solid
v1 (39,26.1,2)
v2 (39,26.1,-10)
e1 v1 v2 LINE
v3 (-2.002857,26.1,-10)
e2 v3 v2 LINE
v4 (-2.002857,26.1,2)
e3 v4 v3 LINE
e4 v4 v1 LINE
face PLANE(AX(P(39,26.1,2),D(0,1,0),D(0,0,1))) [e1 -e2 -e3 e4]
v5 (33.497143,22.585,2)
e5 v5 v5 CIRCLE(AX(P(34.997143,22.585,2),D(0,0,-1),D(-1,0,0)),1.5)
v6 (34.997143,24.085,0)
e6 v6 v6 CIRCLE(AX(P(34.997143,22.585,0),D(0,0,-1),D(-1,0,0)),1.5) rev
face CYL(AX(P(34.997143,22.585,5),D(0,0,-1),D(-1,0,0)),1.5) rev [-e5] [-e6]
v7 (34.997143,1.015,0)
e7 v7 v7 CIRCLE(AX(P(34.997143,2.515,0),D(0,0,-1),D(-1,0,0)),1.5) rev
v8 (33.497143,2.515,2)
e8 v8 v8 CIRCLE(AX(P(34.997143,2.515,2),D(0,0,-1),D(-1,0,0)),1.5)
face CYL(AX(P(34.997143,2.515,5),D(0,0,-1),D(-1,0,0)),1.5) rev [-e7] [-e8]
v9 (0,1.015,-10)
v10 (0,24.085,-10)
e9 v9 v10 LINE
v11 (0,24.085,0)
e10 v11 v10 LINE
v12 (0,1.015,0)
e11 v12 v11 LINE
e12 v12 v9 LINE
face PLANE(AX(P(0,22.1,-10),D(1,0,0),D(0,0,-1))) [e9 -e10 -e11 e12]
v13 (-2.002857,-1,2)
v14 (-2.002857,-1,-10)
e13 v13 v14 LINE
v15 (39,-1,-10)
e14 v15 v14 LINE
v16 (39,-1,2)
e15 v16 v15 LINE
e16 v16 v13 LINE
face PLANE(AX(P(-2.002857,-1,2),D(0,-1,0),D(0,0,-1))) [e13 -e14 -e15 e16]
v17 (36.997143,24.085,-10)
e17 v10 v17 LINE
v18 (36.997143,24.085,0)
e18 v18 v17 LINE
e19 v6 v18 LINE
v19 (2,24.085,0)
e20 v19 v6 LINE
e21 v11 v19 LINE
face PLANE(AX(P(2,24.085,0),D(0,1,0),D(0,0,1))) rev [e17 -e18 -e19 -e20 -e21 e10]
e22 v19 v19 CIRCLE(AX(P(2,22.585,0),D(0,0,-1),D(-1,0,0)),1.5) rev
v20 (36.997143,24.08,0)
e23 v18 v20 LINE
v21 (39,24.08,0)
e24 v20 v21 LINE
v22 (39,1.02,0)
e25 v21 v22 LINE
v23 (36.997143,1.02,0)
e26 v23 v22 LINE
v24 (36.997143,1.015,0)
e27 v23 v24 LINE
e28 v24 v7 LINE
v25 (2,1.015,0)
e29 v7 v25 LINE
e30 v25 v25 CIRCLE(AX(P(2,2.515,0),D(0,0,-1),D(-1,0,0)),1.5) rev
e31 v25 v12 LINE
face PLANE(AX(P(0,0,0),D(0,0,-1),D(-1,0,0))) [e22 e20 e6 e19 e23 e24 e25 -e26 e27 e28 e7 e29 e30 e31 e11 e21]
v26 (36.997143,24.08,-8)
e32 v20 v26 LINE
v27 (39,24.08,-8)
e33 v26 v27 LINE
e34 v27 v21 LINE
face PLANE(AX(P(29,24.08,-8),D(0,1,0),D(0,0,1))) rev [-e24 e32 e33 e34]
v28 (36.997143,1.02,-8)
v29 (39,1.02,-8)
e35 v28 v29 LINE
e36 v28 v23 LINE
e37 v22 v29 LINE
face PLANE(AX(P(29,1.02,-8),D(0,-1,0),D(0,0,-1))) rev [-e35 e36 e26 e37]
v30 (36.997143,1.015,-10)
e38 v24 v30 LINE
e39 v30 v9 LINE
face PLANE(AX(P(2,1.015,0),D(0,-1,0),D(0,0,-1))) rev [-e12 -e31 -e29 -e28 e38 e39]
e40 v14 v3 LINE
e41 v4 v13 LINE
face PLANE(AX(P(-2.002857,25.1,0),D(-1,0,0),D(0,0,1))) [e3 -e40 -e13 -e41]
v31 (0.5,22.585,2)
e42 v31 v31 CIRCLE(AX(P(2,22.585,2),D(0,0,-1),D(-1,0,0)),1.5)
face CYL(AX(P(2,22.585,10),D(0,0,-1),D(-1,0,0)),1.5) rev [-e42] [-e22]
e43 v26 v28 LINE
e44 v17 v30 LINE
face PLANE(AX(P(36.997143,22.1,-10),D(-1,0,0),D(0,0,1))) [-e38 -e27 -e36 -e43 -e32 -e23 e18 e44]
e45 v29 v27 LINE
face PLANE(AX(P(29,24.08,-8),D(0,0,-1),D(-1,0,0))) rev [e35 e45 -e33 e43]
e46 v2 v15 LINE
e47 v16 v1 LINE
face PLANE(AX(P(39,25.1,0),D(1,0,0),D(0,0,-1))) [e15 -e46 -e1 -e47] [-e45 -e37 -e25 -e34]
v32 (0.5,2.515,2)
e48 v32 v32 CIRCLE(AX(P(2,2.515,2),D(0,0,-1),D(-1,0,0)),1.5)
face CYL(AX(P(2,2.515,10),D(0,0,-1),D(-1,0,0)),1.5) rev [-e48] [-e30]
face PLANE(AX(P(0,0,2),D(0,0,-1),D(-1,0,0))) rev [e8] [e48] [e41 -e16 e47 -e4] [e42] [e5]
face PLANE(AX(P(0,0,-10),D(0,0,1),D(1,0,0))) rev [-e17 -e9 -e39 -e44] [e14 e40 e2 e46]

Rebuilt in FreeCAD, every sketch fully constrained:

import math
import FreeCAD as App
import Part
import Sketcher

V = App.Vector


def add_polygon(sketch, points):
    """Adds a closed chain of lines whose ends are joined by coincident constraints."""
    first, n = sketch.GeometryCount, len(points)
    for a, b in zip(points, points[1:] + points[:1]):
        sketch.addGeometry(Part.LineSegment(App.Vector(*a, 0), App.Vector(*b, 0)), False)
    for i in range(n):
        sketch.addConstraint(Sketcher.Constraint("Coincident", first + i, 2, first + (i + 1) % n, 1))

doc = App.newDocument("Part")
body = doc.addObject("PartDesign::Body", "Body")

sketch1 = body.newObject("Sketcher::SketchObject", "Sketch")
sketch1.AttachmentSupport = (doc.getObject("XY_Plane"), [""])
sketch1.MapMode = "FlatFace"
add_polygon(sketch1, [(0, 25), (0, 0), (35, 0), (35, 25)])
sketch1.addConstraint(Sketcher.Constraint("Vertical", 0))
sketch1.addConstraint(Sketcher.Constraint("Horizontal", 1))
sketch1.addConstraint(Sketcher.Constraint("Vertical", 2))
sketch1.addConstraint(Sketcher.Constraint("Horizontal", 3))
sketch1.addConstraint(Sketcher.Constraint("Coincident", 0, 2, -1, 1))
sketch1.addConstraint(Sketcher.Constraint("DistanceX", 1, 1, 1, 2, 35.0))
sketch1.addConstraint(Sketcher.Constraint("DistanceY", 0, 2, 0, 1, 25.1))
pad1 = body.newObject("PartDesign::Pad", "Pad")
pad1.Profile = sketch1
pad1.Length = 2

sketch2 = body.newObject("Sketcher::SketchObject", "Sketch001")
sketch2.AttachmentSupport = (doc.getObject("XY_Plane"), [""])
sketch2.MapMode = "FlatFace"
sketch2.AttachmentOffset = App.Placement(V(0, 0, 2), App.Rotation())
sketch2.addGeometry(Part.Circle(V(2.1, 23, 0), V(0, 0, 1), 1.5), False)
sketch2.addGeometry(Part.Circle(V(2.1, 2.1, 0), V(0, 0, 1), 1.5), False)
sketch2.addConstraint(Sketcher.Constraint("Equal", 0, 1))
sketch2.addConstraint(Sketcher.Constraint("Vertical", 0, 3, 1, 3))
sketch2.addConstraint(Sketcher.Constraint("Diameter", 0, 3.0))
sketch2.addConstraint(Sketcher.Constraint("DistanceX", -1, 1, 0, 3, 2.13))
sketch2.addConstraint(Sketcher.Constraint("DistanceY", -1, 1, 0, 3, 22.97))
sketch2.addConstraint(Sketcher.Constraint("DistanceY", -1, 1, 1, 3, 2.13))
pocket1 = body.newObject("PartDesign::Pocket", "Pocket")
pocket1.Profile = sketch2
pocket1.Length = 2

sketch3 = body.newObject("Sketcher::SketchObject", "Sketch002")
sketch3.AttachmentSupport = (doc.getObject("XY_Plane"), [""])
sketch3.MapMode = "FlatFace"
sketch3.AttachmentOffset = App.Placement(V(0, 0, 2), App.Rotation())
add_polygon(sketch3, [(-2, 25.1), (-2, 0), (0, 0), (0, 25.1)])
sketch3.addConstraint(Sketcher.Constraint("Vertical", 0))
sketch3.addConstraint(Sketcher.Constraint("Horizontal", 1))
sketch3.addConstraint(Sketcher.Constraint("Vertical", 2))
sketch3.addConstraint(Sketcher.Constraint("Horizontal", 3))
sketch3.addConstraint(Sketcher.Constraint("Coincident", 1, 2, -1, 1))
sketch3.addConstraint(Sketcher.Constraint("DistanceY", 0, 2, 0, 1, 25.1))
sketch3.addConstraint(Sketcher.Constraint("DistanceX", 1, 1, 1, 2, 2.002857))
pad2 = body.newObject("PartDesign::Pad", "Pad001")
pad2.Profile = sketch3
pad2.Length = 2
pad2.Reversed = True

sketch4 = body.newObject("Sketcher::SketchObject", "Sketch003")
sketch4.AttachmentSupport = (doc.getObject("XY_Plane"), [""])
sketch4.MapMode = "FlatFace"
sketch4.AttachmentOffset = App.Placement(V(0, 0, 2), App.Rotation())
add_polygon(sketch4, [(2, 19), (2, 6), (15, 6), (15, 19)])
sketch4.addConstraint(Sketcher.Constraint("Vertical", 0))
sketch4.addConstraint(Sketcher.Constraint("Horizontal", 1))
sketch4.addConstraint(Sketcher.Constraint("Vertical", 2))
sketch4.addConstraint(Sketcher.Constraint("Horizontal", 3))
sketch4.addConstraint(Sketcher.Constraint("Equal", 3, 0))
sketch4.addConstraint(Sketcher.Constraint("DistanceX", 1, 1, 1, 2, 13.0))
sketch4.addConstraint(Sketcher.Constraint("DistanceY", -1, 1, 0, 2, 6.05))
sketch4.addConstraint(Sketcher.Constraint("DistanceX", -1, 1, 0, 2, 1.597143))
pocket2 = body.newObject("PartDesign::Pocket", "Pocket001")
pocket2.Profile = sketch4
pocket2.Length = 2

sketch5 = body.newObject("Sketcher::SketchObject", "Sketch004")
sketch5.AttachmentSupport = (doc.getObject("XY_Plane"), [""])
sketch5.MapMode = "FlatFace"
sketch5.AttachmentOffset = App.Placement(V(0, 0, 2), App.Rotation())
add_polygon(sketch5, [(35, 25.1), (35, 0), (39, 0), (39, 25.1)])
sketch5.addConstraint(Sketcher.Constraint("Vertical", 0))
sketch5.addConstraint(Sketcher.Constraint("Horizontal", 1))
sketch5.addConstraint(Sketcher.Constraint("Vertical", 2))
sketch5.addConstraint(Sketcher.Constraint("Horizontal", 3))
sketch5.addConstraint(Sketcher.Constraint("PointOnObject", 0, 2, -1))
sketch5.addConstraint(Sketcher.Constraint("DistanceX", 1, 1, 1, 2, 4.0))
sketch5.addConstraint(Sketcher.Constraint("DistanceY", 0, 2, 0, 1, 25.1))
sketch5.addConstraint(Sketcher.Constraint("DistanceX", -1, 1, 0, 2, 35.0))
pad3 = body.newObject("PartDesign::Pad", "Pad002")
pad3.Profile = sketch5
pad3.Length = 2
pad3.Reversed = True

sketch6 = body.newObject("Sketcher::SketchObject", "Sketch005")
sketch6.AttachmentSupport = (doc.getObject("XY_Plane"), [""])
sketch6.MapMode = "FlatFace"
add_polygon(sketch6, [(39, 25.1), (39, 0), (-2, 0), (-2, 25.1)])
sketch6.addGeometry(Part.ArcOfCircle(Part.Circle(V(35, 22.1, 0), V(0, 0, 1), 2), math.radians(180), math.radians(360)), False)
sketch6.addGeometry(Part.LineSegment(V(33, 22.1, 0), V(4, 22.1, 0)), False)
sketch6.addGeometry(Part.ArcOfCircle(Part.Circle(V(2, 22.1, 0), V(0, 0, 1), 2), math.radians(180), math.radians(360)), False)
sketch6.addGeometry(Part.LineSegment(V(0, 22.1, 0), V(0, 3, 0)), False)
sketch6.addGeometry(Part.ArcOfCircle(Part.Circle(V(2, 3, 0), V(0, 0, 1), 2), math.radians(0), math.radians(180)), False)
sketch6.addGeometry(Part.LineSegment(V(4, 3, 0), V(33, 3, 0)), False)
sketch6.addGeometry(Part.ArcOfCircle(Part.Circle(V(35, 3, 0), V(0, 0, 1), 2), math.radians(0), math.radians(180)), False)
sketch6.addGeometry(Part.LineSegment(V(37, 3, 0), V(37, 22.1, 0)), False)
sketch6.addConstraint(Sketcher.Constraint("Coincident", 4, 1, 5, 1))
sketch6.addConstraint(Sketcher.Constraint("Coincident", 5, 2, 6, 2))
sketch6.addConstraint(Sketcher.Constraint("Tangent", 6, 1, 7, 1))
sketch6.addConstraint(Sketcher.Constraint("Tangent", 7, 2, 8, 2))
sketch6.addConstraint(Sketcher.Constraint("Coincident", 8, 1, 9, 1))
sketch6.addConstraint(Sketcher.Constraint("Coincident", 9, 2, 10, 2))
sketch6.addConstraint(Sketcher.Constraint("Tangent", 10, 1, 11, 1))
sketch6.addConstraint(Sketcher.Constraint("Tangent", 11, 2, 4, 2))
sketch6.addConstraint(Sketcher.Constraint("Vertical", 0))
sketch6.addConstraint(Sketcher.Constraint("Horizontal", 1))
sketch6.addConstraint(Sketcher.Constraint("Vertical", 2))
sketch6.addConstraint(Sketcher.Constraint("Horizontal", 3))
sketch6.addConstraint(Sketcher.Constraint("Horizontal", 5))
sketch6.addConstraint(Sketcher.Constraint("Vertical", 7))
sketch6.addConstraint(Sketcher.Constraint("Horizontal", 9))
sketch6.addConstraint(Sketcher.Constraint("Vertical", 11))
sketch6.addConstraint(Sketcher.Constraint("Equal", 4, 6))
sketch6.addConstraint(Sketcher.Constraint("Equal", 6, 8))
sketch6.addConstraint(Sketcher.Constraint("Equal", 8, 10))
sketch6.addConstraint(Sketcher.Constraint("PointOnObject", 0, 2, -1))
sketch6.addConstraint(Sketcher.Constraint("PointOnObject", 6, 1, -2))
sketch6.addConstraint(Sketcher.Constraint("Horizontal", 4, 3, 6, 3))
sketch6.addConstraint(Sketcher.Constraint("Horizontal", 8, 3, 10, 3))
sketch6.addConstraint(Sketcher.Constraint("Horizontal", 6, 3, 4, 1))
sketch6.addConstraint(Sketcher.Constraint("Horizontal", 7, 2, 8, 1))
sketch6.addConstraint(Sketcher.Constraint("Radius", 4, 2.0))
sketch6.addConstraint(Sketcher.Constraint("DistanceY", 0, 2, 0, 1, 25.1))
sketch6.addConstraint(Sketcher.Constraint("DistanceY", 7, 2, 7, 1, 19.1))
sketch6.addConstraint(Sketcher.Constraint("DistanceY", -1, 1, 8, 3, 3.0))
sketch6.addConstraint(Sketcher.Constraint("DistanceX", -1, 1, 0, 2, 39.0))
sketch6.addConstraint(Sketcher.Constraint("DistanceX", 1, 2, 10, 3, 37.0))
sketch6.addConstraint(Sketcher.Constraint("DistanceX", 1, 2, 1, 1, 41.002857))
pad4 = body.newObject("PartDesign::Pad", "Pad003")
pad4.Profile = sketch6
pad4.Length = 10
pad4.Reversed = True

sketch7 = body.newObject("Sketcher::SketchObject", "Sketch006")
sketch7.AttachmentSupport = (doc.getObject("XY_Plane"), [""])
sketch7.MapMode = "FlatFace"
sketch7.AttachmentOffset = App.Placement(V(0, 0, 2), App.Rotation())
add_polygon(sketch7, [(-2, 25), (-2, 0), (15, 0), (15, 25)])
sketch7.addConstraint(Sketcher.Constraint("Vertical", 0))
sketch7.addConstraint(Sketcher.Constraint("Horizontal", 1))
sketch7.addConstraint(Sketcher.Constraint("Vertical", 2))
sketch7.addConstraint(Sketcher.Constraint("Horizontal", 3))
sketch7.addConstraint(Sketcher.Constraint("PointOnObject", 0, 2, -1))
sketch7.addConstraint(Sketcher.Constraint("DistanceY", 0, 2, 0, 1, 25.1))
sketch7.addConstraint(Sketcher.Constraint("DistanceX", 1, 1, 1, 2, 17.371692))
sketch7.addConstraint(Sketcher.Constraint("DistanceX", 0, 2, -1, 1, 2.002857))
pad5 = body.newObject("PartDesign::Pad", "Pad004")
pad5.Profile = sketch7
pad5.Length = 2
pad5.Reversed = True

sketch8 = body.newObject("Sketcher::SketchObject", "Sketch007")
sketch8.AttachmentSupport = (doc.getObject("XY_Plane"), [""])
sketch8.MapMode = "FlatFace"
sketch8.AttachmentOffset = App.Placement(V(0, 0, -10), App.Rotation())
sketch8.addGeometry(Part.Circle(V(2, 22.6, 0), V(0, 0, 1), 1.5), False)
sketch8.addGeometry(Part.Circle(V(2, 2.5, 0), V(0, 0, 1), 1.5), False)
sketch8.addConstraint(Sketcher.Constraint("Equal", 0, 1))
sketch8.addConstraint(Sketcher.Constraint("Vertical", 0, 3, 1, 3))
sketch8.addConstraint(Sketcher.Constraint("Diameter", 0, 3.0))
sketch8.addConstraint(Sketcher.Constraint("DistanceX", -1, 1, 0, 3, 2.0))
sketch8.addConstraint(Sketcher.Constraint("DistanceY", 1, 3, 0, 3, 20.07))
sketch8.addConstraint(Sketcher.Constraint("DistanceY", -1, 1, 0, 3, 22.585))
pocket3 = body.newObject("PartDesign::Pocket", "Pocket002")
pocket3.Profile = sketch8
pocket3.Length = 20
pocket3.Reversed = True

sketch9 = body.newObject("Sketcher::SketchObject", "Sketch008")
sketch9.AttachmentSupport = (doc.getObject("XY_Plane"), [""])
sketch9.MapMode = "FlatFace"
sketch9.addGeometry(Part.LineSegment(V(2, 20.1, 0), V(0, 20.1, 0)), False)
sketch9.addGeometry(Part.LineSegment(V(0, 20.1, 0), V(0, 22.1, 0)), False)
sketch9.addGeometry(Part.ArcOfCircle(Part.Circle(V(2, 22.1, 0), V(0, 0, 1), 2), math.radians(-180), math.radians(-90)), False)
sketch9.addGeometry(Part.LineSegment(V(0, 3, 0), V(0, 5, 0)), False)
sketch9.addGeometry(Part.LineSegment(V(0, 5, 0), V(2, 5, 0)), False)
sketch9.addGeometry(Part.ArcOfCircle(Part.Circle(V(2, 3, 0), V(0, 0, 1), 2), math.radians(90), math.radians(180)), False)
sketch9.addConstraint(Sketcher.Constraint("Coincident", 0, 2, 1, 1))
sketch9.addConstraint(Sketcher.Constraint("Tangent", 1, 2, 2, 1))
sketch9.addConstraint(Sketcher.Constraint("Tangent", 2, 2, 0, 1))
sketch9.addConstraint(Sketcher.Constraint("Coincident", 3, 2, 4, 1))
sketch9.addConstraint(Sketcher.Constraint("Tangent", 4, 2, 5, 1))
sketch9.addConstraint(Sketcher.Constraint("Tangent", 5, 2, 3, 1))
sketch9.addConstraint(Sketcher.Constraint("Horizontal", 0))
sketch9.addConstraint(Sketcher.Constraint("Vertical", 1))
sketch9.addConstraint(Sketcher.Constraint("Vertical", 3))
sketch9.addConstraint(Sketcher.Constraint("Horizontal", 4))
sketch9.addConstraint(Sketcher.Constraint("Equal", 2, 5))
sketch9.addConstraint(Sketcher.Constraint("PointOnObject", 0, 2, -2))
sketch9.addConstraint(Sketcher.Constraint("PointOnObject", 3, 2, -2))
sketch9.addConstraint(Sketcher.Constraint("Radius", 2, 2.0))
sketch9.addConstraint(Sketcher.Constraint("DistanceY", -1, 1, 5, 3, 3.0))
sketch9.addConstraint(Sketcher.Constraint("DistanceY", -1, 1, 2, 3, 22.1))
pad6 = body.newObject("PartDesign::Pad", "Pad005")
pad6.Profile = sketch9
pad6.Length = 10
pad6.Reversed = True

sketch10 = body.newObject("Sketcher::SketchObject", "Sketch009")
sketch10.AttachmentSupport = (doc.getObject("XY_Plane"), [""])
sketch10.MapMode = "FlatFace"
sketch10.AttachmentOffset = App.Placement(V(0, 0, -10), App.Rotation())
add_polygon(sketch10, [(37, 20.1), (35, 20.1), (37, 22.1)])
add_polygon(sketch10, [(37, 5), (37, 3), (35, 3), (35, 5)])
sketch10.addConstraint(Sketcher.Constraint("Horizontal", 0))
sketch10.addConstraint(Sketcher.Constraint("Vertical", 2))
sketch10.addConstraint(Sketcher.Constraint("Vertical", 3))
sketch10.addConstraint(Sketcher.Constraint("Horizontal", 4))
sketch10.addConstraint(Sketcher.Constraint("Vertical", 5))
sketch10.addConstraint(Sketcher.Constraint("Horizontal", 6))
sketch10.addConstraint(Sketcher.Constraint("Vertical", 2, 2, 3, 2))
sketch10.addConstraint(Sketcher.Constraint("Vertical", 0, 2, 4, 2))
sketch10.addConstraint(Sketcher.Constraint("Equal", 6, 2))
sketch10.addConstraint(Sketcher.Constraint("Equal", 2, 3))
sketch10.addConstraint(Sketcher.Constraint("DistanceX", 0, 2, 0, 1, 2.0))
sketch10.addConstraint(Sketcher.Constraint("DistanceY", -1, 1, 3, 2, 3.0))
sketch10.addConstraint(Sketcher.Constraint("DistanceY", -1, 1, 0, 2, 20.1))
sketch10.addConstraint(Sketcher.Constraint("DistanceX", -1, 1, 0, 2, 34.997143))
pad7 = body.newObject("PartDesign::Pad", "Pad006")
pad7.Profile = sketch10
pad7.Length = 10

sketch11 = body.newObject("Sketcher::SketchObject", "Sketch010")
sketch11.AttachmentSupport = (doc.getObject("XY_Plane"), [""])
sketch11.MapMode = "FlatFace"
sketch11.AttachmentOffset = App.Placement(V(0, 0, -10), App.Rotation())
sketch11.addGeometry(Part.Circle(V(35, 22.6, 0), V(0, 0, 1), 1.5), False)
sketch11.addGeometry(Part.Circle(V(35, 2.5, 0), V(0, 0, 1), 1.5), False)
sketch11.addConstraint(Sketcher.Constraint("Equal", 0, 1))
sketch11.addConstraint(Sketcher.Constraint("Vertical", 0, 3, 1, 3))
sketch11.addConstraint(Sketcher.Constraint("Diameter", 0, 3.0))
sketch11.addConstraint(Sketcher.Constraint("DistanceY", 1, 3, 0, 3, 20.07))
sketch11.addConstraint(Sketcher.Constraint("DistanceY", -1, 1, 0, 3, 22.585))
sketch11.addConstraint(Sketcher.Constraint("DistanceX", -1, 1, 0, 3, 34.997143))
pocket4 = body.newObject("PartDesign::Pocket", "Pocket003")
pocket4.Profile = sketch11
pocket4.Length = 15
pocket4.Reversed = True

sketch12 = body.newObject("Sketcher::SketchObject", "Sketch011")
sketch12.AttachmentSupport = (doc.getObject("XY_Plane"), [""])
sketch12.MapMode = "FlatFace"
sketch12.AttachmentOffset = App.Placement(V(0, 0, -10), App.Rotation())
add_polygon(sketch12, [(39, 26.1), (39, 25.1), (-2, 25.1), (-2, 26.1)])
add_polygon(sketch12, [(39, 0), (39, -1), (-2, -1), (-2, 0)])
sketch12.addConstraint(Sketcher.Constraint("Vertical", 0))
sketch12.addConstraint(Sketcher.Constraint("Horizontal", 1))
sketch12.addConstraint(Sketcher.Constraint("Vertical", 2))
sketch12.addConstraint(Sketcher.Constraint("Horizontal", 3))
sketch12.addConstraint(Sketcher.Constraint("Vertical", 4))
sketch12.addConstraint(Sketcher.Constraint("Horizontal", 5))
sketch12.addConstraint(Sketcher.Constraint("Vertical", 6))
sketch12.addConstraint(Sketcher.Constraint("Horizontal", 7))
sketch12.addConstraint(Sketcher.Constraint("PointOnObject", 6, 2, -1))
sketch12.addConstraint(Sketcher.Constraint("Vertical", 3, 2, 4, 2))
sketch12.addConstraint(Sketcher.Constraint("Vertical", 2, 2, 5, 2))
sketch12.addConstraint(Sketcher.Constraint("Equal", 2, 4))
sketch12.addConstraint(Sketcher.Constraint("DistanceY", 0, 2, 0, 1, 1.0))
sketch12.addConstraint(Sketcher.Constraint("DistanceX", -1, 1, 0, 2, 39.0))
sketch12.addConstraint(Sketcher.Constraint("DistanceY", -1, 1, 0, 2, 25.1))
sketch12.addConstraint(Sketcher.Constraint("DistanceX", 1, 2, 1, 1, 41.002857))
pad8 = body.newObject("PartDesign::Pad", "Pad007")
pad8.Profile = sketch12
pad8.Length = 12

sketch13 = body.newObject("Sketcher::SketchObject", "Sketch012")
sketch13.AttachmentSupport = (doc.getObject("XY_Plane"), [""])
sketch13.MapMode = "FlatFace"
sketch13.AttachmentOffset = App.Placement(V(0, 0, -10), App.Rotation())
add_polygon(sketch13, [(0, 24), (37, 24), (37, 1), (0, 1)])
sketch13.addConstraint(Sketcher.Constraint("Horizontal", 0))
sketch13.addConstraint(Sketcher.Constraint("Vertical", 1))
sketch13.addConstraint(Sketcher.Constraint("Horizontal", 2))
sketch13.addConstraint(Sketcher.Constraint("Vertical", 3))
sketch13.addConstraint(Sketcher.Constraint("PointOnObject", 2, 2, -2))
sketch13.addConstraint(Sketcher.Constraint("DistanceY", 1, 2, 1, 1, 23.07))
sketch13.addConstraint(Sketcher.Constraint("DistanceY", -1, 1, 0, 2, 24.085))
sketch13.addConstraint(Sketcher.Constraint("DistanceX", 0, 1, 0, 2, 36.997143))
pocket5 = body.newObject("PartDesign::Pocket", "Pocket004")
pocket5.Profile = sketch13
pocket5.Length = 10
pocket5.Reversed = True

sketch14 = body.newObject("Sketcher::SketchObject", "Sketch013")
sketch14.AttachmentSupport = (doc.getObject("YZ_Plane"), [""])
sketch14.MapMode = "FlatFace"
sketch14.AttachmentOffset = App.Placement(V(0, 0, 39), App.Rotation())
add_polygon(sketch14, [(24, 0), (1, 0), (1, -8), (24, -8)])
sketch14.addConstraint(Sketcher.Constraint("Horizontal", 0))
sketch14.addConstraint(Sketcher.Constraint("Vertical", 1))
sketch14.addConstraint(Sketcher.Constraint("Horizontal", 2))
sketch14.addConstraint(Sketcher.Constraint("Vertical", 3))
sketch14.addConstraint(Sketcher.Constraint("PointOnObject", 0, 2, -1))
sketch14.addConstraint(Sketcher.Constraint("DistanceY", 1, 2, 1, 1, 8.0))
sketch14.addConstraint(Sketcher.Constraint("DistanceX", 0, 2, 0, 1, 23.06))
sketch14.addConstraint(Sketcher.Constraint("DistanceX", -1, 1, 0, 2, 1.02))
pocket6 = body.newObject("PartDesign::Pocket", "Pocket005")
pocket6.Profile = sketch14
pocket6.Length = 10

doc.recompute()
